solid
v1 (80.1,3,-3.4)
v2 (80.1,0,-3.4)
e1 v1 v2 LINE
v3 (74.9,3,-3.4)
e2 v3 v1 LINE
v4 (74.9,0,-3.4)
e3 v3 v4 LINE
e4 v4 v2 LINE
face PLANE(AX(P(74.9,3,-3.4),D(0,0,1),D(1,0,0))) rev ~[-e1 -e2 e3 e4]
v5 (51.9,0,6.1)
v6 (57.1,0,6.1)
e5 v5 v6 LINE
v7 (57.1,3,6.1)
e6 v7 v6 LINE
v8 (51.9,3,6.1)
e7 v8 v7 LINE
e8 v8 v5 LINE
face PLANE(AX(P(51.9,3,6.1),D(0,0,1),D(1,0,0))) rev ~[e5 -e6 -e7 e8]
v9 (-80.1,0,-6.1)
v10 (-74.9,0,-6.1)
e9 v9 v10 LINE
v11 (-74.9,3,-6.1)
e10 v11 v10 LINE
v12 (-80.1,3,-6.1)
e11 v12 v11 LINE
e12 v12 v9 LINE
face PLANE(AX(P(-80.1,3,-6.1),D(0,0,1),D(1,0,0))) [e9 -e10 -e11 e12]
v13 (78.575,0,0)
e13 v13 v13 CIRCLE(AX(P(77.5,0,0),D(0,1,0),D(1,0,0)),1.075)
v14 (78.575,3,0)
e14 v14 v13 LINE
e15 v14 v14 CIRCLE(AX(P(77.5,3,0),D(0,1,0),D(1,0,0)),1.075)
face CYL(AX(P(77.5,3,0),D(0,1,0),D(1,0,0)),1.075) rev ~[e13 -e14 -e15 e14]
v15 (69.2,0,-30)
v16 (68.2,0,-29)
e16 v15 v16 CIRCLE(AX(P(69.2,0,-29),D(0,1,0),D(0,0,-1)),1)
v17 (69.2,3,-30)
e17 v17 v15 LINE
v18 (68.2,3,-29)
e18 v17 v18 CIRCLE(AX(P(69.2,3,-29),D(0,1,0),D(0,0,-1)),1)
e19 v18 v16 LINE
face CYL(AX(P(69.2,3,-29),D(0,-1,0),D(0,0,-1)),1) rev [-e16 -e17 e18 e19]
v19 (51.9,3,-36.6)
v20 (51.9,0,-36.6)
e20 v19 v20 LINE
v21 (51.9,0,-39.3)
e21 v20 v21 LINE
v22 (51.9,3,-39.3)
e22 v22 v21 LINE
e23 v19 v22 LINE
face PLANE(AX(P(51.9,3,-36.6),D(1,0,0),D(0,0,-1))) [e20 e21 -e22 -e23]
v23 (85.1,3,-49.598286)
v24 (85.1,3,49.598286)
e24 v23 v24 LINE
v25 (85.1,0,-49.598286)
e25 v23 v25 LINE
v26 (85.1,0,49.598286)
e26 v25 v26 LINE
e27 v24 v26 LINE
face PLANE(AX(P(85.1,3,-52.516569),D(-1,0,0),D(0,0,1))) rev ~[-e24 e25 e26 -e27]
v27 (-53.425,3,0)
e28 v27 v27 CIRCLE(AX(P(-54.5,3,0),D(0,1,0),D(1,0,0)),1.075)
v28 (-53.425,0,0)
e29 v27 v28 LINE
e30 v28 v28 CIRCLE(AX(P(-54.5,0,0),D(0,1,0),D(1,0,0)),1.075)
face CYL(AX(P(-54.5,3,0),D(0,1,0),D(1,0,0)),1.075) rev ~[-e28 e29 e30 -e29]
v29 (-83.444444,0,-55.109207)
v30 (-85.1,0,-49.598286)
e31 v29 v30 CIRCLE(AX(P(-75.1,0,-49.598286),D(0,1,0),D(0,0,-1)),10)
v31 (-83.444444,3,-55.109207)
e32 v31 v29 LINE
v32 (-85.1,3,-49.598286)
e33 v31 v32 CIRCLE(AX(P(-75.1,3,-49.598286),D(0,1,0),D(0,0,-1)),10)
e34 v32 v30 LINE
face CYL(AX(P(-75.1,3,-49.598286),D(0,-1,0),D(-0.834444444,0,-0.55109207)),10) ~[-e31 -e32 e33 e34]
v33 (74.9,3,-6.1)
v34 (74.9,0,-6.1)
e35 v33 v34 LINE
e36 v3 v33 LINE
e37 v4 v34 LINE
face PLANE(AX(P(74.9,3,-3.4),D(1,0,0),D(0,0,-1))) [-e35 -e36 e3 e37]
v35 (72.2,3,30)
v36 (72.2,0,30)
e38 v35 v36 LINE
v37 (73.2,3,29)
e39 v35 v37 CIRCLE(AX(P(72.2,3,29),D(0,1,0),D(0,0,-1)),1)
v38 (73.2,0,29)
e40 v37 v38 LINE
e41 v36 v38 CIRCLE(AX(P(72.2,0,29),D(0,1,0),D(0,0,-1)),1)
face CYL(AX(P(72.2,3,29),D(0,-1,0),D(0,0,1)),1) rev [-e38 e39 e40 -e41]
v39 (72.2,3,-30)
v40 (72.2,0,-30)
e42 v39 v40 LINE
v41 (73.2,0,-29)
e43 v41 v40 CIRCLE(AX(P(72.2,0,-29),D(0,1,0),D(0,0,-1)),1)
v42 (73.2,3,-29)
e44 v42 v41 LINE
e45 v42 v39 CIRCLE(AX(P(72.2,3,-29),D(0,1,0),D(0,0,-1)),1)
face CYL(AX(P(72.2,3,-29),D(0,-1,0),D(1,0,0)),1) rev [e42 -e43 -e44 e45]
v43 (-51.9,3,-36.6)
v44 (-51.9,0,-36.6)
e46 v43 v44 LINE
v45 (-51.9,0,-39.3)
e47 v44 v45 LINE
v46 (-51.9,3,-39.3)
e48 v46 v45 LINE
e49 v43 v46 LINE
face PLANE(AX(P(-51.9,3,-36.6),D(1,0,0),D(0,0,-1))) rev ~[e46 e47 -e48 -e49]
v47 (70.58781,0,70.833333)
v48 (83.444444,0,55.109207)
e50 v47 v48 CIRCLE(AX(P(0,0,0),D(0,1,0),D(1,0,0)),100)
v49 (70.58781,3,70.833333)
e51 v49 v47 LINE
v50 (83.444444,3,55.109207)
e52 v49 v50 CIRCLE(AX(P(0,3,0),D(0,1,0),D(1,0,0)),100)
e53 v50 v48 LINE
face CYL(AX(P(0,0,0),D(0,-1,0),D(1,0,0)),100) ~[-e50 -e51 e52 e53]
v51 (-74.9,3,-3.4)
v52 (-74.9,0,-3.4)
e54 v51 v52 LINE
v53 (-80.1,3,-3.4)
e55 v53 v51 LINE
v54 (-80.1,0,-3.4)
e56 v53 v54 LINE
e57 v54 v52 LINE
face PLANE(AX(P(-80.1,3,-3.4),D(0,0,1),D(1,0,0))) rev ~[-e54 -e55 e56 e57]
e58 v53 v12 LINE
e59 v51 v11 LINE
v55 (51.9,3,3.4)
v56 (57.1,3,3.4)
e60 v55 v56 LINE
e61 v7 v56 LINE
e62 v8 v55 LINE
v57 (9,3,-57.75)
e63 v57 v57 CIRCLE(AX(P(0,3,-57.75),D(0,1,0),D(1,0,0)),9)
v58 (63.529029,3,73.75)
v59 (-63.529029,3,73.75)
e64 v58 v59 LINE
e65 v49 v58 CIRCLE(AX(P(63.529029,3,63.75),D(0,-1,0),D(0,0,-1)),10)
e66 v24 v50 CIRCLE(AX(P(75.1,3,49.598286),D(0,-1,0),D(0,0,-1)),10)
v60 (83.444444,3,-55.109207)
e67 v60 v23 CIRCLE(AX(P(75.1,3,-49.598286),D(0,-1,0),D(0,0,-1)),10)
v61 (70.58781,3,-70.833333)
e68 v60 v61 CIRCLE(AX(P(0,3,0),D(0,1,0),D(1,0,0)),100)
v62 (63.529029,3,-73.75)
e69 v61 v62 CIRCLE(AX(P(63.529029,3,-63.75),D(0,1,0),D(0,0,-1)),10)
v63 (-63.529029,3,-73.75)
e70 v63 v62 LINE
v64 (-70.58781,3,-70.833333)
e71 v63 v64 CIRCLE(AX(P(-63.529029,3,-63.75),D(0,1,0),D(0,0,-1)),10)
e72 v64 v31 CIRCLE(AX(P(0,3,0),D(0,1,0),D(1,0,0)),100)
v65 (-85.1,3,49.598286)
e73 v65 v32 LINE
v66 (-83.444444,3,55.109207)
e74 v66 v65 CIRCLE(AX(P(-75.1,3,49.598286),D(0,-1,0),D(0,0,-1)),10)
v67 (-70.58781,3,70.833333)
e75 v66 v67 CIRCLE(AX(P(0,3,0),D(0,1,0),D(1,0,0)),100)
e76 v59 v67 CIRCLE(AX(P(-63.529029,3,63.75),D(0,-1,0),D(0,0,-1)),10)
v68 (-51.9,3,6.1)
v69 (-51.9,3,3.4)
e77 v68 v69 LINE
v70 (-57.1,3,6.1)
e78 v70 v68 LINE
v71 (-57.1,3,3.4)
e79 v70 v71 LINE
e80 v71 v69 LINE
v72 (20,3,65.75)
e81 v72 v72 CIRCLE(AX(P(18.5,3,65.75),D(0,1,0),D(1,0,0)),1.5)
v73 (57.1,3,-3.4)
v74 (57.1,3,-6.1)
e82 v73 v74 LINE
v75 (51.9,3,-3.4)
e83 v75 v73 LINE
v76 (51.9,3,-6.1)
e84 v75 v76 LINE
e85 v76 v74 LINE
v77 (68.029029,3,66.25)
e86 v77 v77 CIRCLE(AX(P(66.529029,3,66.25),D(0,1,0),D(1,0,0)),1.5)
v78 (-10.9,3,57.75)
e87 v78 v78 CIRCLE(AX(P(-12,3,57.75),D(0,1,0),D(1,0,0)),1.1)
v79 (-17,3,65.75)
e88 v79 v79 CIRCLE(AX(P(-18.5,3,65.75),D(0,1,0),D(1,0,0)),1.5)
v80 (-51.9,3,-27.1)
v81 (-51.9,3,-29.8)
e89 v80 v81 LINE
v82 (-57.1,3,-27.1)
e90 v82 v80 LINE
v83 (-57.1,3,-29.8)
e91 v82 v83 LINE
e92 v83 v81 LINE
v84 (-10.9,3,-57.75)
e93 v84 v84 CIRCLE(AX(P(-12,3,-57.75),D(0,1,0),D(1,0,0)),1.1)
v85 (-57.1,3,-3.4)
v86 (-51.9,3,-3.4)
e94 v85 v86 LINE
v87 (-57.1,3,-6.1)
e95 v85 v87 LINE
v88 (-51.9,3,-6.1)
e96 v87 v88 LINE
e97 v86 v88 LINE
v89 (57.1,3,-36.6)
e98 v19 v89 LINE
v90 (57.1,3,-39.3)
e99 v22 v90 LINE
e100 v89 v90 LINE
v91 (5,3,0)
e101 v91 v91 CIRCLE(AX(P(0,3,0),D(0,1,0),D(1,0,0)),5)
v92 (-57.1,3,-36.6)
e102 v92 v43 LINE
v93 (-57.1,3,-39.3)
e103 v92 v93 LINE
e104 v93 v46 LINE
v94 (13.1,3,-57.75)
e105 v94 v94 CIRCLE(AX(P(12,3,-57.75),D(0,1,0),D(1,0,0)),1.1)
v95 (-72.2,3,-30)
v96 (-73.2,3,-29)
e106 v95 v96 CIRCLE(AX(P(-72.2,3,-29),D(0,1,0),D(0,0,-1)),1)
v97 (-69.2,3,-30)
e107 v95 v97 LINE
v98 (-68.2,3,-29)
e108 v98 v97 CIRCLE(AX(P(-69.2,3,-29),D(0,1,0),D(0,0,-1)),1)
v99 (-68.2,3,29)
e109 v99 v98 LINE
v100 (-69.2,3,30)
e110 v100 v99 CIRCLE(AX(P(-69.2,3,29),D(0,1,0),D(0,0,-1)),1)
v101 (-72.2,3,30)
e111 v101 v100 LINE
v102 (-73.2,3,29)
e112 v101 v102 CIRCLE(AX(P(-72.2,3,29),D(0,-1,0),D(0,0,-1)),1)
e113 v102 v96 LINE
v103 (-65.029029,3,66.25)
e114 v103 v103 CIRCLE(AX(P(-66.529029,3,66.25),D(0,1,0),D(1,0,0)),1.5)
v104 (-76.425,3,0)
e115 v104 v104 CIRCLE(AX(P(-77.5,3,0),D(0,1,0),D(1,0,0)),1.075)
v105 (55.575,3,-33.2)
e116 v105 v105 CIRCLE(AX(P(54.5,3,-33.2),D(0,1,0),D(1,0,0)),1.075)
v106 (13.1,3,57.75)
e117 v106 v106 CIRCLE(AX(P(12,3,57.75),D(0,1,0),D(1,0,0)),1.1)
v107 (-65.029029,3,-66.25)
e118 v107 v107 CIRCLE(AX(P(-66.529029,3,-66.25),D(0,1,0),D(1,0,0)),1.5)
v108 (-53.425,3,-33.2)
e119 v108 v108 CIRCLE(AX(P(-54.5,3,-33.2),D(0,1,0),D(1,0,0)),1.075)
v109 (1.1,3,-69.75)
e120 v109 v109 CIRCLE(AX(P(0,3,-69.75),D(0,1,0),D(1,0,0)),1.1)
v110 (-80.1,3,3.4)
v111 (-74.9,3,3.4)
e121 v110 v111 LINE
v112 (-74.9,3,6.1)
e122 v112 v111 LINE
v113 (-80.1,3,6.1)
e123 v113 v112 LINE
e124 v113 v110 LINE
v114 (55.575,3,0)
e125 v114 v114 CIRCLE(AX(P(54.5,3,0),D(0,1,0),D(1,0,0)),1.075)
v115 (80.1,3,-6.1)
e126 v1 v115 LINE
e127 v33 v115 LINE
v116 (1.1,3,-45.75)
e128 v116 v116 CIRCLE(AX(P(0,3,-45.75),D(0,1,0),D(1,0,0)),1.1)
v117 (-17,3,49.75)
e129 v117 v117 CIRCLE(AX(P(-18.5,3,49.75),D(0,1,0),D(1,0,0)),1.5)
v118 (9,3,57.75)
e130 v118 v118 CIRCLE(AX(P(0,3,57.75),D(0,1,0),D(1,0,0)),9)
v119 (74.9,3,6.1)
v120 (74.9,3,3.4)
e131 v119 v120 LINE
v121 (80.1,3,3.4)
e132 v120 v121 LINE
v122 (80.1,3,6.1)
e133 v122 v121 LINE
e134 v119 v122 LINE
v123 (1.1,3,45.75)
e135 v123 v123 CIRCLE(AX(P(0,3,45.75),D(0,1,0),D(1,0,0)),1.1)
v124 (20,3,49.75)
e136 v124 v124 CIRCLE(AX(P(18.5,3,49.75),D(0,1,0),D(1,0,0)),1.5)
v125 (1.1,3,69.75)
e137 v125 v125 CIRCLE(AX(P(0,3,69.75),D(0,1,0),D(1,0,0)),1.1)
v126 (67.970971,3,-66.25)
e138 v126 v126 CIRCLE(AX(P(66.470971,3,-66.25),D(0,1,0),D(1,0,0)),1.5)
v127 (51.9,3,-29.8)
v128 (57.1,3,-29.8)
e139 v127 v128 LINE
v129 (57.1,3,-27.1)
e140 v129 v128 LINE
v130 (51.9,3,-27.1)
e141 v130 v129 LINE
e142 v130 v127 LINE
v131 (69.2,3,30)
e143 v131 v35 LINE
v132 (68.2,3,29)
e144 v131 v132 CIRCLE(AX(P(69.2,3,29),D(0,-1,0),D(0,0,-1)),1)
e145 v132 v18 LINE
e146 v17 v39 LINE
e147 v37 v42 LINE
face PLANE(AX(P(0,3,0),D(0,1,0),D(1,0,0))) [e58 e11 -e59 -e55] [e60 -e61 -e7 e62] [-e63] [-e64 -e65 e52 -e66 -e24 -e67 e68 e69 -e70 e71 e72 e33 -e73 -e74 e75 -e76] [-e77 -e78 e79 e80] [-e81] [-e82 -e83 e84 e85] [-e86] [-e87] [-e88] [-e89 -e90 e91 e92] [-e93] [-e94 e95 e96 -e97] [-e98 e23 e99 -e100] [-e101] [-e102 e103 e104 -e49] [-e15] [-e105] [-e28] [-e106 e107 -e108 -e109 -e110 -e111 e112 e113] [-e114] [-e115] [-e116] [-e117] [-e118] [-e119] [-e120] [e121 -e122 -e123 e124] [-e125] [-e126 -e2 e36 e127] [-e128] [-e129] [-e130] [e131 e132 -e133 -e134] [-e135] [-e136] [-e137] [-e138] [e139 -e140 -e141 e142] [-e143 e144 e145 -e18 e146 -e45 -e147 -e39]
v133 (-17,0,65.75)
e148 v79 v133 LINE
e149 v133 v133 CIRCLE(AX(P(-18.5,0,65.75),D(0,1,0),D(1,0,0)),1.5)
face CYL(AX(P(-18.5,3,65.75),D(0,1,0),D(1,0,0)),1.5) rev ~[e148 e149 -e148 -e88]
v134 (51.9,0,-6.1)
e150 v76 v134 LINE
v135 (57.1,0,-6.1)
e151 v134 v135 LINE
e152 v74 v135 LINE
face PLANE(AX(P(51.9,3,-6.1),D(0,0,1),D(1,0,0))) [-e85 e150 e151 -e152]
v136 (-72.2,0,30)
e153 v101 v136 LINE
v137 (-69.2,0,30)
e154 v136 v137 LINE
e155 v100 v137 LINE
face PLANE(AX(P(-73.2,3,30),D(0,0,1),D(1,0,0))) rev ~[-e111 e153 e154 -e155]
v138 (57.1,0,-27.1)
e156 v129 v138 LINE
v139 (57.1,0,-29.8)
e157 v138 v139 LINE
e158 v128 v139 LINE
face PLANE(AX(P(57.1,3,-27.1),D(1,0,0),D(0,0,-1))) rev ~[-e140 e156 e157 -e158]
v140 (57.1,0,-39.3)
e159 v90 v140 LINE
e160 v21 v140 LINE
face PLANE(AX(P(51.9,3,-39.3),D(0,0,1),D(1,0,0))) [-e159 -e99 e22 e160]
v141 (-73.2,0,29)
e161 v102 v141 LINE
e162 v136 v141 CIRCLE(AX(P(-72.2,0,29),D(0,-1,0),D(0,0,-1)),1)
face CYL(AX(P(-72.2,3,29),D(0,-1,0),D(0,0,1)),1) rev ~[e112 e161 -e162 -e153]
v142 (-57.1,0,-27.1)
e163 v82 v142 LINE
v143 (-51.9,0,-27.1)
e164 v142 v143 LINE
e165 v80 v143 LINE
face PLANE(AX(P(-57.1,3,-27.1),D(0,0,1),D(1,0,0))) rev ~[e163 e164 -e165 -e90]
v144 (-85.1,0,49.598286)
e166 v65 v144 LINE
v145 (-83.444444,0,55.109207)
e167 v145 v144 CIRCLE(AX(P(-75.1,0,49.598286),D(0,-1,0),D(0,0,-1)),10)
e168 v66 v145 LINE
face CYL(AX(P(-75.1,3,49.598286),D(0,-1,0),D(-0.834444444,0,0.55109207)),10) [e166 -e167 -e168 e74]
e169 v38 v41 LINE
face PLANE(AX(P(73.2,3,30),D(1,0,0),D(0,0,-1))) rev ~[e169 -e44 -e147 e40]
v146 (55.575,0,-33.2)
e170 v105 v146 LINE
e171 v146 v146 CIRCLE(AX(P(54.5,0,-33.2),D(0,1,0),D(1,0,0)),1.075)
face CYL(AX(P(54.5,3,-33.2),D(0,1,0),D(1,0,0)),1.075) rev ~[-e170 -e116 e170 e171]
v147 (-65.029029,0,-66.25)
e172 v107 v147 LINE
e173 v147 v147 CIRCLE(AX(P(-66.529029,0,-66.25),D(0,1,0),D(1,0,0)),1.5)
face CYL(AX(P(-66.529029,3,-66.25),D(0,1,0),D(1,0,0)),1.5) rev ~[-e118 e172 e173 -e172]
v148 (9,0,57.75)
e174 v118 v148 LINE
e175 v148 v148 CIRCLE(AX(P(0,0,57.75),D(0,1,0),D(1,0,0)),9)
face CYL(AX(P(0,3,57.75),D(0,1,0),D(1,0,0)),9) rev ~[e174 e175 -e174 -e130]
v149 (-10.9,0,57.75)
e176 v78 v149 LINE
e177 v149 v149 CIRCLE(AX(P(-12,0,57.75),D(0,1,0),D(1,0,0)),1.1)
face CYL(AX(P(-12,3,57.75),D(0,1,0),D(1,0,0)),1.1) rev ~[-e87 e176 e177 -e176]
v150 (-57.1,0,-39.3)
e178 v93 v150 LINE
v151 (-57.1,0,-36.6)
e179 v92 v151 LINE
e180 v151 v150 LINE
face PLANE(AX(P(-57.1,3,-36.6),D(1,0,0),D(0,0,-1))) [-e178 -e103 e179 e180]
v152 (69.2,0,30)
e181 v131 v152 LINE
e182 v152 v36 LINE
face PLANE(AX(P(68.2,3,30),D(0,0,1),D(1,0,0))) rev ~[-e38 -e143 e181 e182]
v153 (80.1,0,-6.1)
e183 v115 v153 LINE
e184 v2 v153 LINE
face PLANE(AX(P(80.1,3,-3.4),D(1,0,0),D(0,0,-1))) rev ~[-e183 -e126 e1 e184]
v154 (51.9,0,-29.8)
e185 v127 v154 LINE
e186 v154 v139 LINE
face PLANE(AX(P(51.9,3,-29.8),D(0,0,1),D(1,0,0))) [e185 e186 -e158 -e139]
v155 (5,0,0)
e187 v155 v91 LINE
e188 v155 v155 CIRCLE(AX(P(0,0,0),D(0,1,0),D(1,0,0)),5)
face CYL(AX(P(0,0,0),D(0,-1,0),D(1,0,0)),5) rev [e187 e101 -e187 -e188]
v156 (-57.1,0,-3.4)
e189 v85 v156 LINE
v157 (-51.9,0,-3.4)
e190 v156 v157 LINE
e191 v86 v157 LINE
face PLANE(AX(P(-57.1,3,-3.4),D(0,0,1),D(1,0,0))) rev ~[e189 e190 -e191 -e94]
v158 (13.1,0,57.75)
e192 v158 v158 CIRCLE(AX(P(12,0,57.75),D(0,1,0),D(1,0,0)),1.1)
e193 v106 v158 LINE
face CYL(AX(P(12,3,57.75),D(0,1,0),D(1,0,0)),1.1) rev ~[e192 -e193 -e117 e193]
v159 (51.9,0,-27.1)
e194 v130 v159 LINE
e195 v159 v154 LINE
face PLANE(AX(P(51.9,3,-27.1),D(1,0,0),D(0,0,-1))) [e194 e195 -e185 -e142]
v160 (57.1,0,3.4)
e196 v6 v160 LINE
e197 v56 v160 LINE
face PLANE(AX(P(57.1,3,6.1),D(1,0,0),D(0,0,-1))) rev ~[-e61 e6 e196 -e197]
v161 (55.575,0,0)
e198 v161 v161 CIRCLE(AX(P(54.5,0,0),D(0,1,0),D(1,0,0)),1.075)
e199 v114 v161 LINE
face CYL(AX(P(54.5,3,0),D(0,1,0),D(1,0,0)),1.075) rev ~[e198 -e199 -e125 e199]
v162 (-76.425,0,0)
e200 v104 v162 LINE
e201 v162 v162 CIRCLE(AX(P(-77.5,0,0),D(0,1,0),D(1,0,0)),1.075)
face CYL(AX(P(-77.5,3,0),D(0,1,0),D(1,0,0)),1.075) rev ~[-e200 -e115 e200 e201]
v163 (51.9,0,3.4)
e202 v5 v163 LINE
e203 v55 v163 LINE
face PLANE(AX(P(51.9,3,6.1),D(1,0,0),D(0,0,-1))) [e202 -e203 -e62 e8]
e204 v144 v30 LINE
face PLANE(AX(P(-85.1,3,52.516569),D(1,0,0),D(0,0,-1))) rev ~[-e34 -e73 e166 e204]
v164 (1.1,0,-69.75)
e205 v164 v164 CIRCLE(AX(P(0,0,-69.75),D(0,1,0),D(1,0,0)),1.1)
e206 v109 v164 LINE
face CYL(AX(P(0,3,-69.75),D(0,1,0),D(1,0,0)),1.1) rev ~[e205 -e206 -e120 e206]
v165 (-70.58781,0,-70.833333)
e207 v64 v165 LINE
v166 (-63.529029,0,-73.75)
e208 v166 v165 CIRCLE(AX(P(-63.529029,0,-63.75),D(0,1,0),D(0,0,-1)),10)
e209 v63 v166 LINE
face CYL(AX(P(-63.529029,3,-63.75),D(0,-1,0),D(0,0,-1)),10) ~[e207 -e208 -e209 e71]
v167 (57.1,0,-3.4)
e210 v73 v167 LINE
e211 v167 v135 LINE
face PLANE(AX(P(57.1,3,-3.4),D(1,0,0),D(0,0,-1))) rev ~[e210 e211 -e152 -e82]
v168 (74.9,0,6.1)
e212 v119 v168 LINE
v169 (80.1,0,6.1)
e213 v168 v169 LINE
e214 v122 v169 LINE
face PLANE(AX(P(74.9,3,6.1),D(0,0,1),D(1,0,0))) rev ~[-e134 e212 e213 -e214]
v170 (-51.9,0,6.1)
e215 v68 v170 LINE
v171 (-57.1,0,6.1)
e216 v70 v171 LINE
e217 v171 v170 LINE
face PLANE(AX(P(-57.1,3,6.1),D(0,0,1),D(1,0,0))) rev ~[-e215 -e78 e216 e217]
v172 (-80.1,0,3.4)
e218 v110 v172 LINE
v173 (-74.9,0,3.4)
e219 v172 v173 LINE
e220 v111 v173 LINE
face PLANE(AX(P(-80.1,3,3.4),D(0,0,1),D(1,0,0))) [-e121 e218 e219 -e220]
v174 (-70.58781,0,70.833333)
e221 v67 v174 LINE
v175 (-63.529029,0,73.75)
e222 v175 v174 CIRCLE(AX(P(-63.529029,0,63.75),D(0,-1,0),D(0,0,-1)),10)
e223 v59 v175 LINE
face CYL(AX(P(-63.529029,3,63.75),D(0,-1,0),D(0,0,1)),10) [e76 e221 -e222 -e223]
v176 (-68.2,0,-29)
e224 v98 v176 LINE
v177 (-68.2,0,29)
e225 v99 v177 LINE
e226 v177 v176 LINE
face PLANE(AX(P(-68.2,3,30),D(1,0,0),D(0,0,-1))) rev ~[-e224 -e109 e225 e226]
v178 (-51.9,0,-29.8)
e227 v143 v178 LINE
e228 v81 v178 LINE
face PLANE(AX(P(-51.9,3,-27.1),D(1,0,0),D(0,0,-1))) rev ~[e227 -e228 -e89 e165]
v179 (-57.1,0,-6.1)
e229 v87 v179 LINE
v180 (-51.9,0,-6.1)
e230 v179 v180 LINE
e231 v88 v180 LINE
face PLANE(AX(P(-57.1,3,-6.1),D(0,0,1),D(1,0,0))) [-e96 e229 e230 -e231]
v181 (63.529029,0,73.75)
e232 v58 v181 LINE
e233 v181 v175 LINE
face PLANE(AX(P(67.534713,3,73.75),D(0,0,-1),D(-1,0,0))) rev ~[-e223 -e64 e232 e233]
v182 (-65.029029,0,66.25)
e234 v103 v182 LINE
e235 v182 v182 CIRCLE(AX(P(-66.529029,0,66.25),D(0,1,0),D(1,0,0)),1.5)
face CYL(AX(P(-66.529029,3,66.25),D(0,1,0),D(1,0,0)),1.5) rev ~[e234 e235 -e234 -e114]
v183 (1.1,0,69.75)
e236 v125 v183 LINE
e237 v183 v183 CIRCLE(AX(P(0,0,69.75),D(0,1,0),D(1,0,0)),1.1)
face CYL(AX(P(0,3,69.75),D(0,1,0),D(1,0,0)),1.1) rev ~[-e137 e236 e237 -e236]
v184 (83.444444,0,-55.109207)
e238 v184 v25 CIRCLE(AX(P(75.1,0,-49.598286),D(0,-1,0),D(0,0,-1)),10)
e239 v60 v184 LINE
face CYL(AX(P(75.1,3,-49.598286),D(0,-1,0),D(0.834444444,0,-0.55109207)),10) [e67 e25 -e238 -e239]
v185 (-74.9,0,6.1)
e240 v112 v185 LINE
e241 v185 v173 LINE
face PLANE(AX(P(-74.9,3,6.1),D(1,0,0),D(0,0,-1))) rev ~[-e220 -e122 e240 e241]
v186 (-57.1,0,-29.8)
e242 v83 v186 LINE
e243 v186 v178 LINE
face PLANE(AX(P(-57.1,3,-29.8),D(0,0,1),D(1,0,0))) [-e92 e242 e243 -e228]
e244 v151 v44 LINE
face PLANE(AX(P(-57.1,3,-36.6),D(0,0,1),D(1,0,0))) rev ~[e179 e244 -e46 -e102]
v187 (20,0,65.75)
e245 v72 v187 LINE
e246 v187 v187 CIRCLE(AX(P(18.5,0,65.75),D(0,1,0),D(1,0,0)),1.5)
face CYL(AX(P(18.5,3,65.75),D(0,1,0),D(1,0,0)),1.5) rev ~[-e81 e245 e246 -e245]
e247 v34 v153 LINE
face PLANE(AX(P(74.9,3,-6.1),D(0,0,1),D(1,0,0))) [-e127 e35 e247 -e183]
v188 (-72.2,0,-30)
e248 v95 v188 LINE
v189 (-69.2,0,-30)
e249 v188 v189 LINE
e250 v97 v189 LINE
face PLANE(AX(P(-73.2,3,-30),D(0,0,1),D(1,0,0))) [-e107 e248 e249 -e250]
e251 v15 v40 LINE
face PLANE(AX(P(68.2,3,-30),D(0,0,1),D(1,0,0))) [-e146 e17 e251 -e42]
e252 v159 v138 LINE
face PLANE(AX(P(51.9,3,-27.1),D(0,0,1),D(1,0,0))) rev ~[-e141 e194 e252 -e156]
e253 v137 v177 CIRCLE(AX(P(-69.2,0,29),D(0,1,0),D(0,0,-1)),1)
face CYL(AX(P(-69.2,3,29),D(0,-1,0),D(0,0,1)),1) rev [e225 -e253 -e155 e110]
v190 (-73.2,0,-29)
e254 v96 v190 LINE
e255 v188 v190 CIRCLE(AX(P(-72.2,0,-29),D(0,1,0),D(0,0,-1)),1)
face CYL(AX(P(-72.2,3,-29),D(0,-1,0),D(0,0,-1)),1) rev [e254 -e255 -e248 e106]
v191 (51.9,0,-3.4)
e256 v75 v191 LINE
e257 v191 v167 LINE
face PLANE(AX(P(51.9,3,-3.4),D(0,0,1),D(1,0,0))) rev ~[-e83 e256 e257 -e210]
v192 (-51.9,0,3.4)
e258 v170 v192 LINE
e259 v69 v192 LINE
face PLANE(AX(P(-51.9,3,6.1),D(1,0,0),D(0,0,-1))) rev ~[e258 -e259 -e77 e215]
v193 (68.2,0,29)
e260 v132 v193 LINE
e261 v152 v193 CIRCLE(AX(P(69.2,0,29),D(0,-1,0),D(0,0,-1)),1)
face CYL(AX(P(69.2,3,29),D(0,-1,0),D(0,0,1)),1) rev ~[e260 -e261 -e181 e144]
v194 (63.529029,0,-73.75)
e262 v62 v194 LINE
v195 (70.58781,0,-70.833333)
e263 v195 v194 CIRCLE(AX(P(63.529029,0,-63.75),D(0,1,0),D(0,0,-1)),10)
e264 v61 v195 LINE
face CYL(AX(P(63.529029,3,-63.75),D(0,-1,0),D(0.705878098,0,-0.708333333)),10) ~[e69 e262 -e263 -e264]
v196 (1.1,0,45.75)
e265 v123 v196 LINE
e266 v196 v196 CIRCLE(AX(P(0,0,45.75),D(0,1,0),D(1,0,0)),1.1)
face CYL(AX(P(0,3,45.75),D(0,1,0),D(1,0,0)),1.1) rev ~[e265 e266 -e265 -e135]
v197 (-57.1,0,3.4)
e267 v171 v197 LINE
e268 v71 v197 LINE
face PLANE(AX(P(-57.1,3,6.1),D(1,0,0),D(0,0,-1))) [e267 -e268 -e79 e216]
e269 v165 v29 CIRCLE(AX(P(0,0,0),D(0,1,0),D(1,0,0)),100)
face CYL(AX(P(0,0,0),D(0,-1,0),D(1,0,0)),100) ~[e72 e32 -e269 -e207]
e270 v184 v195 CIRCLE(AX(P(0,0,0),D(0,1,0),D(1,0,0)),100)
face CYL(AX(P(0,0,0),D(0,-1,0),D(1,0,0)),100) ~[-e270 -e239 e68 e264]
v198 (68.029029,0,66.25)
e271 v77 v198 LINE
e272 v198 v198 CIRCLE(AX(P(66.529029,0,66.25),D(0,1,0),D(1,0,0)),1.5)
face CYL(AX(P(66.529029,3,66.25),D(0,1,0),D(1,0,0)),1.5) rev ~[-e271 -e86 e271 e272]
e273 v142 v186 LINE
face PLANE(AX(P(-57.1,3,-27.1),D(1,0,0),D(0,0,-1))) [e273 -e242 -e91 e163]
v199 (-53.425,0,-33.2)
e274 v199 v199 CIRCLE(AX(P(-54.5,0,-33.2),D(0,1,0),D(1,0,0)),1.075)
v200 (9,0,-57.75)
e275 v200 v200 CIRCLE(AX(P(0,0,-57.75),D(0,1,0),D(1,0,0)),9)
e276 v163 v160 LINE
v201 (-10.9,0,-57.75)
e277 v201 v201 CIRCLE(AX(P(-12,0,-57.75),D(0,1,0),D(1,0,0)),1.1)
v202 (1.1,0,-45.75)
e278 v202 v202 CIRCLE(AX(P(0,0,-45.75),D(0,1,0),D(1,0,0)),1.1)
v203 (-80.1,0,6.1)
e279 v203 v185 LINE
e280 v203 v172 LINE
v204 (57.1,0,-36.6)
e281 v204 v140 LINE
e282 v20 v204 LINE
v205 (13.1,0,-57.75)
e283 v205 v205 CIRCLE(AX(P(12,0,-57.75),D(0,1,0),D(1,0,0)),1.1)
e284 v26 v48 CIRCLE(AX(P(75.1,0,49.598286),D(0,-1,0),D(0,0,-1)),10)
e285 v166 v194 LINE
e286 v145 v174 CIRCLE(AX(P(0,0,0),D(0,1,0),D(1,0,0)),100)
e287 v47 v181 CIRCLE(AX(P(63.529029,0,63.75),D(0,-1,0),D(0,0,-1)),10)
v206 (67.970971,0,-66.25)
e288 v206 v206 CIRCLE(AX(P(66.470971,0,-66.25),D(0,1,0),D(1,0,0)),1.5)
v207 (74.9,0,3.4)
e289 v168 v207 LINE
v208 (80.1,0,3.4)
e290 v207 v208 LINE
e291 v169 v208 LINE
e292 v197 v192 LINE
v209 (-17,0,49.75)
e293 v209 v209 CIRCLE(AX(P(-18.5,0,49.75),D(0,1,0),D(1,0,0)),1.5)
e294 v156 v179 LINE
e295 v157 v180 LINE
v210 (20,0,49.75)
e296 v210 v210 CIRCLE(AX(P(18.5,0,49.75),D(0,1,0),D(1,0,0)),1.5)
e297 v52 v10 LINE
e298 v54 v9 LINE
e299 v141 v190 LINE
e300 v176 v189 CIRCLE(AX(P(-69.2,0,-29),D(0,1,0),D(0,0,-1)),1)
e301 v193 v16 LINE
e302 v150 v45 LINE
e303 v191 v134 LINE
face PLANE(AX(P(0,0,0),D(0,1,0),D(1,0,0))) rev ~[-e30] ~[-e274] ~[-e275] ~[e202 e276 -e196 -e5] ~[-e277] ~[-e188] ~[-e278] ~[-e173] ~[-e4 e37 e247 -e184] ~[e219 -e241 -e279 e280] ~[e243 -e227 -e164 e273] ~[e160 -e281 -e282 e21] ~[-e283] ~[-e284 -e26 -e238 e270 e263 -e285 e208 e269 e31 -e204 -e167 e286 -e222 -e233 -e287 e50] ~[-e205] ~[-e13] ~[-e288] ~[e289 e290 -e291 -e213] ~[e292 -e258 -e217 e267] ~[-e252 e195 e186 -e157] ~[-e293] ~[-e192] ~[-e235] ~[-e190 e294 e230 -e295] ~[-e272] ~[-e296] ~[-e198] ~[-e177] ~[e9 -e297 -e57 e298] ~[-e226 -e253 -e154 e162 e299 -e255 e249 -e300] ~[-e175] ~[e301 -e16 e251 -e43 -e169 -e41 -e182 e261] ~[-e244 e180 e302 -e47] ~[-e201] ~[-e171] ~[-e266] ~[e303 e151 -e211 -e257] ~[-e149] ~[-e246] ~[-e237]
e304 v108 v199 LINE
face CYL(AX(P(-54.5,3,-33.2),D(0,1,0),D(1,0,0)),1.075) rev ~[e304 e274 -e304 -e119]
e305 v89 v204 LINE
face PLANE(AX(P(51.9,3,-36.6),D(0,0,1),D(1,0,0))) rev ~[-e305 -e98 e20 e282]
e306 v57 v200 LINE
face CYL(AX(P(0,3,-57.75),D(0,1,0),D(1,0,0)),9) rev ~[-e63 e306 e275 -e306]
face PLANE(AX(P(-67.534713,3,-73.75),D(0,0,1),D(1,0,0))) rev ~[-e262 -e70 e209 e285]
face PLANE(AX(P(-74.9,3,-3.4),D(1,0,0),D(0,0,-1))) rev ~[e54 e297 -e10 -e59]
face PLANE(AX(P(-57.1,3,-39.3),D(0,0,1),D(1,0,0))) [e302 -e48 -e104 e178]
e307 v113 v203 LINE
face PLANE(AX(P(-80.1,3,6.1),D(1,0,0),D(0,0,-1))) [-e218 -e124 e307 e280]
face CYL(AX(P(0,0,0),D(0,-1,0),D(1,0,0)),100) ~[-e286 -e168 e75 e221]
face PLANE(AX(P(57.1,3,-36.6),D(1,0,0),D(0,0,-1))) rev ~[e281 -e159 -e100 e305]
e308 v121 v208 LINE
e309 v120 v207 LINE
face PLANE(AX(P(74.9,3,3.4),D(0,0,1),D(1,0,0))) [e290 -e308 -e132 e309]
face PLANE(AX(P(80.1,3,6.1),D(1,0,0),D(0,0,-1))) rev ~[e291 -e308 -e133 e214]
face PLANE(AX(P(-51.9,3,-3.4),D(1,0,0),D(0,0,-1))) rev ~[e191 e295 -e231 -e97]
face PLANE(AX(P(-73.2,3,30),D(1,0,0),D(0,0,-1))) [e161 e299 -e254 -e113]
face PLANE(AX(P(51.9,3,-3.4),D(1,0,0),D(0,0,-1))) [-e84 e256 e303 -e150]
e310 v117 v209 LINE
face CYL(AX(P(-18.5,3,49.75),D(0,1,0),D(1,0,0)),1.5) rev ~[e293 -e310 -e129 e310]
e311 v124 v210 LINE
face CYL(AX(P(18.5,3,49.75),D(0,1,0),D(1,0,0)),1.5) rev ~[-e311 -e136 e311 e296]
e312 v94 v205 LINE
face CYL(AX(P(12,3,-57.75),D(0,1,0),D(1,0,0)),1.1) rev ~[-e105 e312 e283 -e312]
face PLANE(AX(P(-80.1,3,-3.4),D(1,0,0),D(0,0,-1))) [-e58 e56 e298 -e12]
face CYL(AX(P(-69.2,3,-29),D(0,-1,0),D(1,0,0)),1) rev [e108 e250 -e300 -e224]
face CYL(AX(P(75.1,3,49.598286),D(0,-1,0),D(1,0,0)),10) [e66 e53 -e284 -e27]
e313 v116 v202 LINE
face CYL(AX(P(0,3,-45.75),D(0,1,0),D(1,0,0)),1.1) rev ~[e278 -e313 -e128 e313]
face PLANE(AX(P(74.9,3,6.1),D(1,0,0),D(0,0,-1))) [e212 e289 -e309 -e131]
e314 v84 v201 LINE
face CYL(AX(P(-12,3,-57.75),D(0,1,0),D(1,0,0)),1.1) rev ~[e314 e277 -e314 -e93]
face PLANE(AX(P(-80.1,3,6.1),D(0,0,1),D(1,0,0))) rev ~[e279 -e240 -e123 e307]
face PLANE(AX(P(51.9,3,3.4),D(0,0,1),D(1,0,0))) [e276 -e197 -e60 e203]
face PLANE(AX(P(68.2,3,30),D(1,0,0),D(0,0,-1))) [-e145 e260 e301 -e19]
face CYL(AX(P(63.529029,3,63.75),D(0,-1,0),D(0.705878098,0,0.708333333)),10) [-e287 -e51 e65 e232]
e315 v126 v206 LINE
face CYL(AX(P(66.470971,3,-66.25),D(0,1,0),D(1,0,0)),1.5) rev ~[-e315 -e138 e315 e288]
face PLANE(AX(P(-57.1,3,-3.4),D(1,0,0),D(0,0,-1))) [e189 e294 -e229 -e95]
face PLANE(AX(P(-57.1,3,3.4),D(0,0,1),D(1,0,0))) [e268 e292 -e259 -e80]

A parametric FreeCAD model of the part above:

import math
import FreeCAD as App
import Part
import Sketcher


def edges_at(feature, points):
    """Names of the edges that pass closest to the given points."""
    edges = feature.Shape.Edges
    near = lambda p: min(range(len(edges)), key=lambda i: edges[i].distToShape(Part.Vertex(*p))[0])
    return sorted({f"Edge{near(p) + 1}" for p in points})


def add_polygon(sketch, points):
    """Adds a closed chain of lines whose ends are joined by coincident constraints."""
    first, n = sketch.GeometryCount, len(points)
    for a, b in zip(points, points[1:] + points[:1]):
        sketch.addGeometry(Part.LineSegment(App.Vector(*a, 0), App.Vector(*b, 0)), False)
    for i in range(n):
        sketch.addConstraint(Sketcher.Constraint("Coincident", first + i, 2, first + (i + 1) % n, 1))

doc = App.newDocument("Part")
body = doc.addObject("PartDesign::Body", "Body")

sketch1 = doc.addObject("Sketcher::SketchObject", "Sketch")
body.addObject(sketch1)
sketch1.AttachmentSupport = (doc.XZ_Plane, [""])
sketch1.MapMode = "FlatFace"
sketch1.addGeometry([
    Part.Circle(App.Vector(0, 0, 0), App.Vector(0, 0, 1), 100),
    Part.Circle(App.Vector(0, 0, 0), App.Vector(0, 0, 1), 5),
], False)
sketch1.addConstraint([
    Sketcher.Constraint("Coincident", 0, 3, -1, 1),
    Sketcher.Constraint("Coincident", 1, 3, -1, 1),
    Sketcher.Constraint("Diameter", 0, 200.0),
    Sketcher.Constraint("Diameter", 1, 10.0),
])
pad1 = doc.addObject("PartDesign::Pad", "Pad")
body.addObject(pad1)
pad1.Profile = sketch1
pad1.Length = 3
pad1.Reversed = True

sketch2 = doc.addObject("Sketcher::SketchObject", "Sketch001")
body.addObject(sketch2)
sketch2.AttachmentSupport = (doc.XZ_Plane, [""])
sketch2.MapMode = "FlatFace"
sketch2.AttachmentOffset = App.Placement(App.Vector(0, 0, -3), App.Rotation())
add_polygon(sketch2, [(-57.1, -39.3), (-57.1, -36.6), (-51.9, -36.6), (-51.9, -39.3)])
add_polygon(sketch2, [(-57.1, -29.8), (-57.1, -27.1), (-51.9, -27.1), (-51.9, -29.8)])
add_polygon(sketch2, [(-57.1, -6.1), (-57.1, -3.4), (-51.9, -3.4), (-51.9, -6.1)])
add_polygon(sketch2, [(-57.1, 3.4), (-57.1, 6.1), (-51.9, 6.1), (-51.9, 3.4)])
add_polygon(sketch2, [(-80.1, 3.4), (-80.1, 6.1), (-74.9, 6.1), (-74.9, 3.4)])
add_polygon(sketch2, [(-80.1, -6.1), (-80.1, -3.4), (-74.9, -3.4), (-74.9, -6.1)])
add_polygon(sketch2, [(51.9, -29.8), (51.9, -27.1), (57.1, -27.1), (57.1, -29.8)])
add_polygon(sketch2, [(51.9, -39.3), (51.9, -36.6), (57.1, -36.6), (57.1, -39.3)])
add_polygon(sketch2, [(74.9, -6.1), (74.9, -3.4), (80.1, -3.4), (80.1, -6.1)])
add_polygon(sketch2, [(74.9, 3.4), (74.9, 6.1), (80.1, 6.1), (80.1, 3.4)])
add_polygon(sketch2, [(51.9, 3.4), (51.9, 6.1), (57.1, 6.1), (57.1, 3.4)])
add_polygon(sketch2, [(51.9, -6.1), (51.9, -3.4), (57.1, -3.4), (57.1, -6.1)])
sketch2.addConstraint([
    Sketcher.Constraint("Vertical", 0),
    Sketcher.Constraint("Horizontal", 1),
    Sketcher.Constraint("Vertical", 2),
    Sketcher.Constraint("Horizontal", 3),
    Sketcher.Constraint("Vertical", 4),
    Sketcher.Constraint("Horizontal", 5),
    Sketcher.Constraint("Vertical", 6),
    Sketcher.Constraint("Horizontal", 7),
    Sketcher.Constraint("Vertical", 8),
    Sketcher.Constraint("Horizontal", 9),
    Sketcher.Constraint("Vertical", 10),
    Sketcher.Constraint("Horizontal", 11),
    Sketcher.Constraint("Vertical", 12),
    Sketcher.Constraint("Horizontal", 13),
    Sketcher.Constraint("Vertical", 14),
    Sketcher.Constraint("Horizontal", 15),
    Sketcher.Constraint("Vertical", 16),
    Sketcher.Constraint("Horizontal", 17),
    Sketcher.Constraint("Vertical", 18),
    Sketcher.Constraint("Horizontal", 19),
    Sketcher.Constraint("Vertical", 20),
    Sketcher.Constraint("Horizontal", 21),
    Sketcher.Constraint("Vertical", 22),
    Sketcher.Constraint("Horizontal", 23),
    Sketcher.Constraint("Vertical", 24),
    Sketcher.Constraint("Horizontal", 25),
    Sketcher.Constraint("Vertical", 26),
    Sketcher.Constraint("Horizontal", 27),
    Sketcher.Constraint("Vertical", 28),
    Sketcher.Constraint("Horizontal", 29),
    Sketcher.Constraint("Vertical", 30),
    Sketcher.Constraint("Horizontal", 31),
    Sketcher.Constraint("Vertical", 32),
    Sketcher.Constraint("Horizontal", 33),
    Sketcher.Constraint("Vertical", 34),
    Sketcher.Constraint("Horizontal", 35),
    Sketcher.Constraint("Vertical", 36),
    Sketcher.Constraint("Horizontal", 37),
    Sketcher.Constraint("Vertical", 38),
    Sketcher.Constraint("Horizontal", 39),
    Sketcher.Constraint("Vertical", 40),
    Sketcher.Constraint("Horizontal", 41),
    Sketcher.Constraint("Vertical", 42),
    Sketcher.Constraint("Horizontal", 43),
    Sketcher.Constraint("Vertical", 44),
    Sketcher.Constraint("Horizontal", 45),
    Sketcher.Constraint("Vertical", 46),
    Sketcher.Constraint("Horizontal", 47),
    Sketcher.Constraint("Symmetric", 18, 2, 32, 2, -1, 1),
    Sketcher.Constraint("Symmetric", 16, 2, 34, 2, -1, 1),
    Sketcher.Constraint("Symmetric", 22, 2, 36, 2, -1, 1),
    Sketcher.Constraint("Symmetric", 20, 2, 38, 2, -1, 1),
    Sketcher.Constraint("Symmetric", 10, 2, 40, 2, -1, 1),
    Sketcher.Constraint("Symmetric", 8, 2, 42, 2, -1, 1),
    Sketcher.Constraint("Symmetric", 14, 2, 44, 2, -1, 1),
    Sketcher.Constraint("Symmetric", 12, 2, 46, 2, -1, 1),
    Sketcher.Constraint("Symmetric", 5, 2, 24, 2, -2),
    Sketcher.Constraint("Symmetric", 7, 2, 26, 2, -2),
    Sketcher.Constraint("Symmetric", 1, 2, 28, 2, -2),
    Sketcher.Constraint("Symmetric", 3, 2, 30, 2, -2),
    Sketcher.Constraint("Symmetric", 21, 2, 32, 2, -2),
    Sketcher.Constraint("Symmetric", 23, 2, 34, 2, -2),
    Sketcher.Constraint("Symmetric", 13, 2, 40, 2, -2),
    Sketcher.Constraint("Symmetric", 15, 2, 42, 2, -2),
    Sketcher.Constraint("Horizontal", 13, 2, 16, 2),
    Sketcher.Constraint("Horizontal", 15, 2, 18, 2),
    Sketcher.Constraint("Vertical", 3, 2, 4, 2),
    Sketcher.Constraint("Vertical", 2, 2, 5, 2),
    Sketcher.Constraint("Vertical", 7, 2, 8, 2),
    Sketcher.Constraint("Vertical", 6, 2, 9, 2),
    Sketcher.Constraint("Equal", 15, 17),
    Sketcher.Constraint("Equal", 2, 4),
    Sketcher.Constraint("Equal", 6, 8),
    Sketcher.Constraint("DistanceX", 1, 1, 1, 2, 5.2),
    Sketcher.Constraint("DistanceY", 0, 1, 0, 2, 2.7),
    Sketcher.Constraint("DistanceY", 5, 2, 10, 2, 21.0),
    Sketcher.Constraint("DistanceX", 16, 2, 12, 2, 23.0),
    Sketcher.Constraint("DistanceX", 5, 2, 25, 2, 109.0),
    Sketcher.Constraint("DistanceY", 0, 2, -1, 1, 36.6),
    Sketcher.Constraint("DistanceY", 4, 2, -1, 1, 27.1),
])
pocket1 = doc.addObject("PartDesign::Pocket", "Pocket")
body.addObject(pocket1)
pocket1.Profile = sketch2
pocket1.Type = "ThroughAll"
pocket1.Reversed = True

sketch3 = doc.addObject("Sketcher::SketchObject", "Sketch002")
body.addObject(sketch3)
sketch3.AttachmentSupport = (doc.XZ_Plane, [""])
sketch3.MapMode = "FlatFace"
sketch3.AttachmentOffset = App.Placement(App.Vector(0, 0, -3), App.Rotation())
sketch3.addGeometry([
    Part.ArcOfCircle(Part.Circle(App.Vector(0, 0, 0), App.Vector(0, 0, 1), 100), math.radians(-132), math.radians(-48)),
    Part.LineSegment(App.Vector(-68, -74, 0), App.Vector(68, -74, 0)),
    Part.LineSegment(App.Vector(-85, 53, 0), App.Vector(-85, -53, 0)),
    Part.ArcOfCircle(Part.Circle(App.Vector(0, 0, 0), App.Vector(0, 0, 1), 100), math.radians(148), math.radians(212)),
    Part.LineSegment(App.Vector(68, 74, 0), App.Vector(-68, 74, 0)),
    Part.ArcOfCircle(Part.Circle(App.Vector(0, 0, 0), App.Vector(0, 0, 1), 100), math.radians(48), math.radians(132)),
    Part.ArcOfCircle(Part.Circle(App.Vector(0, 0, 0), App.Vector(0, 0, 1), 100), math.radians(-32), math.radians(0)),
    Part.LineSegment(App.Vector(85, -53, 0), App.Vector(85, 53, 0)),
    Part.ArcOfCircle(Part.Circle(App.Vector(0, 0, 0), App.Vector(0, 0, 1), 100), math.radians(0), math.radians(32)),
], False)
sketch3.addConstraint([
    Sketcher.Constraint("Coincident", 0, 1, 1, 1),
    Sketcher.Constraint("Coincident", 1, 2, 0, 2),
    Sketcher.Constraint("Coincident", 2, 1, 3, 1),
    Sketcher.Constraint("Coincident", 3, 2, 2, 2),
    Sketcher.Constraint("Coincident", 4, 1, 5, 1),
    Sketcher.Constraint("Coincident", 5, 2, 4, 2),
    Sketcher.Constraint("Coincident", 6, 1, 7, 1),
    Sketcher.Constraint("Coincident", 7, 2, 8, 2),
    Sketcher.Constraint("Tangent", 8, 1, 6, 2),
    Sketcher.Constraint("Horizontal", 1),
    Sketcher.Constraint("Vertical", 2),
    Sketcher.Constraint("Horizontal", 4),
    Sketcher.Constraint("Vertical", 7),
    Sketcher.Constraint("Coincident", 0, 3, -1, 1),
    Sketcher.Constraint("Coincident", 3, 3, -1, 1),
    Sketcher.Constraint("Coincident", 5, 3, -1, 1),
    Sketcher.Constraint("Coincident", 6, 3, -1, 1),
    Sketcher.Constraint("Equal", 0, 3),
    Sketcher.Constraint("Equal", 3, 5),
    Sketcher.Constraint("Equal", 5, 6),
    Sketcher.Constraint("Equal", 6, 8),
    Sketcher.Constraint("PointOnObject", 8, 1, -1),
    Sketcher.Constraint("Horizontal", 3, 2, 6, 1),
    Sketcher.Constraint("Vertical", 1, 2, 4, 1),
    Sketcher.Constraint("Radius", 0, 100.0),
    Sketcher.Constraint("DistanceX", 2, 1, -1, 1, 85.1),
    Sketcher.Constraint("DistanceY", 0, 1, -1, 1, 73.75),
])
pocket2 = doc.addObject("PartDesign::Pocket", "Pocket001")
body.addObject(pocket2)
pocket2.Profile = sketch3
pocket2.Type = "ThroughAll"
pocket2.Reversed = True

sketch4 = doc.addObject("Sketcher::SketchObject", "Sketch003")
body.addObject(sketch4)
sketch4.AttachmentSupport = (doc.XZ_Plane, [""])
sketch4.MapMode = "FlatFace"
sketch4.AttachmentOffset = App.Placement(App.Vector(0, 0, -3), App.Rotation())
add_polygon(sketch4, [(-73, -30), (-73, 30), (-68, 30), (-68, -30)])
add_polygon(sketch4, [(68, -30), (68, 30), (73, 30), (73, -30)])
sketch4.addConstraint([
    Sketcher.Constraint("Vertical", 0),
    Sketcher.Constraint("Horizontal", 1),
    Sketcher.Constraint("Vertical", 2),
    Sketcher.Constraint("Horizontal", 3),
    Sketcher.Constraint("Vertical", 4),
    Sketcher.Constraint("Horizontal", 5),
    Sketcher.Constraint("Vertical", 6),
    Sketcher.Constraint("Horizontal", 7),
    Sketcher.Constraint("Symmetric", 2, 2, 4, 2, -1, 1),
    Sketcher.Constraint("Symmetric", 0, 2, 6, 2, -1, 1),
    Sketcher.Constraint("Horizontal", 1, 2, 4, 2),
    Sketcher.Constraint("DistanceX", 1, 1, 1, 2, 5.0),
    Sketcher.Constraint("DistanceY", 0, 1, 0, 2, 60.0),
    Sketcher.Constraint("DistanceX", 0, 2, -1, 1, 73.2),
])
pocket3 = doc.addObject("PartDesign::Pocket", "Pocket002")
body.addObject(pocket3)
pocket3.Profile = sketch4
pocket3.Type = "ThroughAll"
pocket3.Reversed = True
doc.recompute()

fillet = doc.addObject("PartDesign::Fillet", "Fillet")
body.addObject(fillet)
fillet.Base = (pocket3, edges_at(pocket3, [
    (-67.535, 1.5, -73.75),
    (67.535, 1.5, -73.75),
    (-85.1, 1.5, -52.517),
    (-85.1, 1.5, 52.517),
    (-67.535, 1.5, 73.75),
    (67.535, 1.5, 73.75),
    (85.1, 1.5, -52.517),
    (85.1, 1.5, 52.517),
]))
fillet.Radius = 10
doc.recompute()

fillet2 = doc.addObject("PartDesign::Fillet", "Fillet001")
body.addObject(fillet2)
fillet2.Base = (fillet, edges_at(fillet, [
    (-73.2, 1.5, 30),
    (-73.2, 1.5, -30),
    (-68.2, 1.5, -30),
    (-68.2, 1.5, 30),
    (73.2, 1.5, -30),
    (73.2, 1.5, 30),
    (68.2, 1.5, 30),
    (68.2, 1.5, -30),
]))
fillet2.Radius = 1

sketch5 = doc.addObject("Sketcher::SketchObject", "Sketch004")
body.addObject(sketch5)
sketch5.AttachmentSupport = (doc.XZ_Plane, [""])
sketch5.MapMode = "FlatFace"
sketch5.AttachmentOffset = App.Placement(App.Vector(0, 0, -3), App.Rotation())
sketch5.addGeometry([
    Part.Circle(App.Vector(-54.5, -33.2, 0), App.Vector(0, 0, 1), 1.1),
    Part.Circle(App.Vector(-54.5, 0, 0), App.Vector(0, 0, 1), 1.1),
    Part.Circle(App.Vector(-77.5, 0, 0), App.Vector(0, 0, 1), 1.1),
    Part.Circle(App.Vector(77.5, 0, 0), App.Vector(0, 0, 1), 1.1),
    Part.Circle(App.Vector(54.5, 0, 0), App.Vector(0, 0, 1), 1.1),
    Part.Circle(App.Vector(54.5, -33.2, 0), App.Vector(0, 0, 1), 1.1),
], False)
sketch5.addConstraint([
    Sketcher.Constraint("Equal", 0, 1),
    Sketcher.Constraint("Equal", 1, 2),
    Sketcher.Constraint("Equal", 2, 3),
    Sketcher.Constraint("Equal", 3, 4),
    Sketcher.Constraint("Equal", 4, 5),
    Sketcher.Constraint("Symmetric", 2, 3, 3, 3, -1, 1),
    Sketcher.Constraint("Symmetric", 1, 3, 4, 3, -1, 1),
    Sketcher.Constraint("Symmetric", 0, 3, 5, 3, -2),
    Sketcher.Constraint("PointOnObject", 1, 3, -1),
    Sketcher.Constraint("PointOnObject", 2, 3, -1),
    Sketcher.Constraint("Vertical", 0, 3, 1, 3),
    Sketcher.Constraint("Diameter", 0, 2.15),
    Sketcher.Constraint("DistanceX", 2, 3, 1, 3, 23.0),
    Sketcher.Constraint("DistanceX", 1, 3, 3, 3, 132.0),
    Sketcher.Constraint("DistanceY", 0, 3, -1, 1, 33.2),
])
pocket4 = doc.addObject("PartDesign::Pocket", "Pocket003")
body.addObject(pocket4)
pocket4.Profile = sketch5
pocket4.Type = "ThroughAll"
pocket4.Reversed = True

sketch6 = doc.addObject("Sketcher::SketchObject", "Sketch005")
body.addObject(sketch6)
sketch6.AttachmentSupport = (doc.XZ_Plane, [""])
sketch6.MapMode = "FlatFace"
sketch6.AttachmentOffset = App.Placement(App.Vector(0, 0, -3), App.Rotation())
sketch6.addGeometry([
    Part.Circle(App.Vector(0, -57.8, 0), App.Vector(0, 0, 1), 9),
    Part.Circle(App.Vector(0, -69.8, 0), App.Vector(0, 0, 1), 1.1),
    Part.Circle(App.Vector(12, -57.8, 0), App.Vector(0, 0, 1), 1.1),
    Part.Circle(App.Vector(0, -45.8, 0), App.Vector(0, 0, 1), 1.1),
    Part.Circle(App.Vector(-12, -57.8, 0), App.Vector(0, 0, 1), 1.1),
    Part.Circle(App.Vector(-12, 57.8, 0), App.Vector(0, 0, 1), 1.1),
    Part.Circle(App.Vector(0, 45.8, 0), App.Vector(0, 0, 1), 1.1),
    Part.Circle(App.Vector(12, 57.8, 0), App.Vector(0, 0, 1), 1.1),
    Part.Circle(App.Vector(0, 69.8, 0), App.Vector(0, 0, 1), 1.1),
    Part.Circle(App.Vector(0, 57.8, 0), App.Vector(0, 0, 1), 9),
], False)
sketch6.addConstraint([
    Sketcher.Constraint("Equal", 1, 2),
    Sketcher.Constraint("Equal", 2, 3),
    Sketcher.Constraint("Equal", 3, 4),
    Sketcher.Constraint("Equal", 4, 5),
    Sketcher.Constraint("Equal", 5, 6),
    Sketcher.Constraint("Equal", 6, 7),
    Sketcher.Constraint("Equal", 7, 8),
    Sketcher.Constraint("Equal", 0, 9),
    Sketcher.Constraint("Symmetric", 2, 3, 5, 3, -1, 1),
    Sketcher.Constraint("Symmetric", 3, 3, 6, 3, -1, 1),
    Sketcher.Constraint("Symmetric", 4, 3, 7, 3, -1, 1),
    Sketcher.Constraint("Symmetric", 1, 3, 8, 3, -1, 1),
    Sketcher.Constraint("Symmetric", 0, 3, 9, 3, -1, 1),
    Sketcher.Constraint("Symmetric", 2, 3, 4, 3, -2),
    Sketcher.Constraint("PointOnObject", 0, 3, -2),
    Sketcher.Constraint("PointOnObject", 1, 3, -2),
    Sketcher.Constraint("PointOnObject", 3, 3, -2),
    Sketcher.Constraint("Horizontal", 0, 3, 2, 3),
    Sketcher.Constraint("Diameter", 0, 18.0),
    Sketcher.Constraint("Diameter", 1, 2.2),
    Sketcher.Constraint("DistanceX", -1, 1, 2, 3, 12.0),
    Sketcher.Constraint("DistanceY", 1, 3, 0, 3, 12.0),
    Sketcher.Constraint("DistanceY", 0, 3, 3, 3, 12.0),
    Sketcher.Constraint("DistanceY", 3, 3, 5, 3, 103.5),
])
pocket5 = doc.addObject("PartDesign::Pocket", "Pocket004")
body.addObject(pocket5)
pocket5.Profile = sketch6
pocket5.Type = "ThroughAll"
pocket5.Reversed = True

sketch7 = doc.addObject("Sketcher::SketchObject", "Sketch006")
body.addObject(sketch7)
sketch7.AttachmentSupport = (doc.XZ_Plane, [""])
sketch7.MapMode = "FlatFace"
sketch7.AttachmentOffset = App.Placement(App.Vector(0, 0, -3), App.Rotation())
sketch7.addGeometry(Part.Circle(App.Vector(18.5, 65.8, 0), App.Vector(0, 0, 1), 1.5), False)
sketch7.addConstraint([
    Sketcher.Constraint("Diameter", 0, 3.0),
    Sketcher.Constraint("DistanceX", -1, 1, 0, 3, 18.5),
    Sketcher.Constraint("DistanceY", -1, 1, 0, 3, 65.75),
])
pocket6 = doc.addObject("PartDesign::Pocket", "Pocket005")
body.addObject(pocket6)
pocket6.Profile = sketch7
pocket6.Type = "UpToFirst"
pocket6.Reversed = True

sketch8 = doc.addObject("Sketcher::SketchObject", "Sketch007")
body.addObject(sketch8)
sketch8.AttachmentSupport = (doc.XZ_Plane, [""])
sketch8.MapMode = "FlatFace"
sketch8.AttachmentOffset = App.Placement(App.Vector(0, 0, -3), App.Rotation())
sketch8.addGeometry(Part.Circle(App.Vector(18.5, 49.8, 0), App.Vector(0, 0, 1), 1.5), False)
sketch8.addConstraint([
    Sketcher.Constraint("Diameter", 0, 3.0),
    Sketcher.Constraint("DistanceX", -1, 1, 0, 3, 18.5),
    Sketcher.Constraint("DistanceY", -1, 1, 0, 3, 49.75),
])
pocket7 = doc.addObject("PartDesign::Pocket", "Pocket006")
body.addObject(pocket7)
pocket7.Profile = sketch8
pocket7.Type = "UpToFirst"
pocket7.Reversed = True

sketch9 = doc.addObject("Sketcher::SketchObject", "Sketch008")
body.addObject(sketch9)
sketch9.AttachmentSupport = (doc.XZ_Plane, [""])
sketch9.MapMode = "FlatFace"
sketch9.AttachmentOffset = App.Placement(App.Vector(0, 0, -3), App.Rotation())
sketch9.addGeometry(Part.Circle(App.Vector(-18.5, 65.8, 0), App.Vector(0, 0, 1), 1.5), False)
sketch9.addConstraint([
    Sketcher.Constraint("Diameter", 0, 3.0),
    Sketcher.Constraint("DistanceX", 0, 3, -1, 1, 18.5),
    Sketcher.Constraint("DistanceY", -1, 1, 0, 3, 65.75),
])
pocket8 = doc.addObject("PartDesign::Pocket", "Pocket007")
body.addObject(pocket8)
pocket8.Profile = sketch9
pocket8.Type = "UpToFirst"
pocket8.Reversed = True

sketch10 = doc.addObject("Sketcher::SketchObject", "Sketch009")
body.addObject(sketch10)
sketch10.AttachmentSupport = (doc.XZ_Plane, [""])
sketch10.MapMode = "FlatFace"
sketch10.AttachmentOffset = App.Placement(App.Vector(0, 0, -3), App.Rotation())
sketch10.addGeometry(Part.Circle(App.Vector(-18.5, 49.8, 0), App.Vector(0, 0, 1), 1.5), False)
sketch10.addConstraint([
    Sketcher.Constraint("Diameter", 0, 3.0),
    Sketcher.Constraint("DistanceX", 0, 3, -1, 1, 18.5),
    Sketcher.Constraint("DistanceY", -1, 1, 0, 3, 49.75),
])
pocket9 = doc.addObject("PartDesign::Pocket", "Pocket008")
body.addObject(pocket9)
pocket9.Profile = sketch10
pocket9.Type = "UpToFirst"
pocket9.Reversed = True

sketch11 = doc.addObject("Sketcher::SketchObject", "Sketch010")
body.addObject(sketch11)
sketch11.AttachmentSupport = (doc.XZ_Plane, [""])
sketch11.MapMode = "FlatFace"
sketch11.AttachmentOffset = App.Placement(App.Vector(0, 0, -3), App.Rotation())
sketch11.addGeometry(Part.Circle(App.Vector(-66.5, -66.2, 0), App.Vector(0, 0, 1), 1.5), False)
sketch11.addConstraint([
    Sketcher.Constraint("Diameter", 0, 3.0),
    Sketcher.Constraint("DistanceY", 0, 3, -1, 1, 66.25),
    Sketcher.Constraint("DistanceX", 0, 3, -1, 1, 66.529029),
])
pocket10 = doc.addObject("PartDesign::Pocket", "Pocket009")
body.addObject(pocket10)
pocket10.Profile = sketch11
pocket10.Type = "UpToFirst"
pocket10.Reversed = True

sketch12 = doc.addObject("Sketcher::SketchObject", "Sketch011")
body.addObject(sketch12)
sketch12.AttachmentSupport = (doc.XZ_Plane, [""])
sketch12.MapMode = "FlatFace"
sketch12.AttachmentOffset = App.Placement(App.Vector(0, 0, -3), App.Rotation())
sketch12.addGeometry(Part.Circle(App.Vector(66.5, -66.2, 0), App.Vector(0, 0, 1), 1.5), False)
sketch12.addConstraint([
    Sketcher.Constraint("Diameter", 0, 3.0),
    Sketcher.Constraint("DistanceY", 0, 3, -1, 1, 66.25),
    Sketcher.Constraint("DistanceX", -1, 1, 0, 3, 66.470971),
])
pocket11 = doc.addObject("PartDesign::Pocket", "Pocket010")
body.addObject(pocket11)
pocket11.Profile = sketch12
pocket11.Type = "UpToFirst"
pocket11.Reversed = True

sketch13 = doc.addObject("Sketcher::SketchObject", "Sketch012")
body.addObject(sketch13)
sketch13.AttachmentSupport = (doc.XZ_Plane, [""])
sketch13.MapMode = "FlatFace"
sketch13.AttachmentOffset = App.Placement(App.Vector(0, 0, -3), App.Rotation())
sketch13.addGeometry(Part.Circle(App.Vector(-66.5, 66.2, 0), App.Vector(0, 0, 1), 1.5), False)
sketch13.addConstraint([
    Sketcher.Constraint("Diameter", 0, 3.0),
    Sketcher.Constraint("DistanceY", -1, 1, 0, 3, 66.25),
    Sketcher.Constraint("DistanceX", 0, 3, -1, 1, 66.529029),
])
pocket12 = doc.addObject("PartDesign::Pocket", "Pocket011")
body.addObject(pocket12)
pocket12.Profile = sketch13
pocket12.Type = "UpToFirst"
pocket12.Reversed = True

sketch14 = doc.addObject("Sketcher::SketchObject", "Sketch013")
body.addObject(sketch14)
sketch14.AttachmentSupport = (doc.XZ_Plane, [""])
sketch14.MapMode = "FlatFace"
sketch14.AttachmentOffset = App.Placement(App.Vector(0, 0, -3), App.Rotation())
sketch14.addGeometry(Part.Circle(App.Vector(66.5, 66.2, 0), App.Vector(0, 0, 1), 1.5), False)
sketch14.addConstraint([
    Sketcher.Constraint("Diameter", 0, 3.0),
    Sketcher.Constraint("DistanceY", -1, 1, 0, 3, 66.25),
    Sketcher.Constraint("DistanceX", -1, 1, 0, 3, 66.529029),
])
pocket13 = doc.addObject("PartDesign::Pocket", "Pocket012")
body.addObject(pocket13)
pocket13.Profile = sketch14
pocket13.Type = "UpToFirst"
pocket13.Reversed = True

doc.recompute()
